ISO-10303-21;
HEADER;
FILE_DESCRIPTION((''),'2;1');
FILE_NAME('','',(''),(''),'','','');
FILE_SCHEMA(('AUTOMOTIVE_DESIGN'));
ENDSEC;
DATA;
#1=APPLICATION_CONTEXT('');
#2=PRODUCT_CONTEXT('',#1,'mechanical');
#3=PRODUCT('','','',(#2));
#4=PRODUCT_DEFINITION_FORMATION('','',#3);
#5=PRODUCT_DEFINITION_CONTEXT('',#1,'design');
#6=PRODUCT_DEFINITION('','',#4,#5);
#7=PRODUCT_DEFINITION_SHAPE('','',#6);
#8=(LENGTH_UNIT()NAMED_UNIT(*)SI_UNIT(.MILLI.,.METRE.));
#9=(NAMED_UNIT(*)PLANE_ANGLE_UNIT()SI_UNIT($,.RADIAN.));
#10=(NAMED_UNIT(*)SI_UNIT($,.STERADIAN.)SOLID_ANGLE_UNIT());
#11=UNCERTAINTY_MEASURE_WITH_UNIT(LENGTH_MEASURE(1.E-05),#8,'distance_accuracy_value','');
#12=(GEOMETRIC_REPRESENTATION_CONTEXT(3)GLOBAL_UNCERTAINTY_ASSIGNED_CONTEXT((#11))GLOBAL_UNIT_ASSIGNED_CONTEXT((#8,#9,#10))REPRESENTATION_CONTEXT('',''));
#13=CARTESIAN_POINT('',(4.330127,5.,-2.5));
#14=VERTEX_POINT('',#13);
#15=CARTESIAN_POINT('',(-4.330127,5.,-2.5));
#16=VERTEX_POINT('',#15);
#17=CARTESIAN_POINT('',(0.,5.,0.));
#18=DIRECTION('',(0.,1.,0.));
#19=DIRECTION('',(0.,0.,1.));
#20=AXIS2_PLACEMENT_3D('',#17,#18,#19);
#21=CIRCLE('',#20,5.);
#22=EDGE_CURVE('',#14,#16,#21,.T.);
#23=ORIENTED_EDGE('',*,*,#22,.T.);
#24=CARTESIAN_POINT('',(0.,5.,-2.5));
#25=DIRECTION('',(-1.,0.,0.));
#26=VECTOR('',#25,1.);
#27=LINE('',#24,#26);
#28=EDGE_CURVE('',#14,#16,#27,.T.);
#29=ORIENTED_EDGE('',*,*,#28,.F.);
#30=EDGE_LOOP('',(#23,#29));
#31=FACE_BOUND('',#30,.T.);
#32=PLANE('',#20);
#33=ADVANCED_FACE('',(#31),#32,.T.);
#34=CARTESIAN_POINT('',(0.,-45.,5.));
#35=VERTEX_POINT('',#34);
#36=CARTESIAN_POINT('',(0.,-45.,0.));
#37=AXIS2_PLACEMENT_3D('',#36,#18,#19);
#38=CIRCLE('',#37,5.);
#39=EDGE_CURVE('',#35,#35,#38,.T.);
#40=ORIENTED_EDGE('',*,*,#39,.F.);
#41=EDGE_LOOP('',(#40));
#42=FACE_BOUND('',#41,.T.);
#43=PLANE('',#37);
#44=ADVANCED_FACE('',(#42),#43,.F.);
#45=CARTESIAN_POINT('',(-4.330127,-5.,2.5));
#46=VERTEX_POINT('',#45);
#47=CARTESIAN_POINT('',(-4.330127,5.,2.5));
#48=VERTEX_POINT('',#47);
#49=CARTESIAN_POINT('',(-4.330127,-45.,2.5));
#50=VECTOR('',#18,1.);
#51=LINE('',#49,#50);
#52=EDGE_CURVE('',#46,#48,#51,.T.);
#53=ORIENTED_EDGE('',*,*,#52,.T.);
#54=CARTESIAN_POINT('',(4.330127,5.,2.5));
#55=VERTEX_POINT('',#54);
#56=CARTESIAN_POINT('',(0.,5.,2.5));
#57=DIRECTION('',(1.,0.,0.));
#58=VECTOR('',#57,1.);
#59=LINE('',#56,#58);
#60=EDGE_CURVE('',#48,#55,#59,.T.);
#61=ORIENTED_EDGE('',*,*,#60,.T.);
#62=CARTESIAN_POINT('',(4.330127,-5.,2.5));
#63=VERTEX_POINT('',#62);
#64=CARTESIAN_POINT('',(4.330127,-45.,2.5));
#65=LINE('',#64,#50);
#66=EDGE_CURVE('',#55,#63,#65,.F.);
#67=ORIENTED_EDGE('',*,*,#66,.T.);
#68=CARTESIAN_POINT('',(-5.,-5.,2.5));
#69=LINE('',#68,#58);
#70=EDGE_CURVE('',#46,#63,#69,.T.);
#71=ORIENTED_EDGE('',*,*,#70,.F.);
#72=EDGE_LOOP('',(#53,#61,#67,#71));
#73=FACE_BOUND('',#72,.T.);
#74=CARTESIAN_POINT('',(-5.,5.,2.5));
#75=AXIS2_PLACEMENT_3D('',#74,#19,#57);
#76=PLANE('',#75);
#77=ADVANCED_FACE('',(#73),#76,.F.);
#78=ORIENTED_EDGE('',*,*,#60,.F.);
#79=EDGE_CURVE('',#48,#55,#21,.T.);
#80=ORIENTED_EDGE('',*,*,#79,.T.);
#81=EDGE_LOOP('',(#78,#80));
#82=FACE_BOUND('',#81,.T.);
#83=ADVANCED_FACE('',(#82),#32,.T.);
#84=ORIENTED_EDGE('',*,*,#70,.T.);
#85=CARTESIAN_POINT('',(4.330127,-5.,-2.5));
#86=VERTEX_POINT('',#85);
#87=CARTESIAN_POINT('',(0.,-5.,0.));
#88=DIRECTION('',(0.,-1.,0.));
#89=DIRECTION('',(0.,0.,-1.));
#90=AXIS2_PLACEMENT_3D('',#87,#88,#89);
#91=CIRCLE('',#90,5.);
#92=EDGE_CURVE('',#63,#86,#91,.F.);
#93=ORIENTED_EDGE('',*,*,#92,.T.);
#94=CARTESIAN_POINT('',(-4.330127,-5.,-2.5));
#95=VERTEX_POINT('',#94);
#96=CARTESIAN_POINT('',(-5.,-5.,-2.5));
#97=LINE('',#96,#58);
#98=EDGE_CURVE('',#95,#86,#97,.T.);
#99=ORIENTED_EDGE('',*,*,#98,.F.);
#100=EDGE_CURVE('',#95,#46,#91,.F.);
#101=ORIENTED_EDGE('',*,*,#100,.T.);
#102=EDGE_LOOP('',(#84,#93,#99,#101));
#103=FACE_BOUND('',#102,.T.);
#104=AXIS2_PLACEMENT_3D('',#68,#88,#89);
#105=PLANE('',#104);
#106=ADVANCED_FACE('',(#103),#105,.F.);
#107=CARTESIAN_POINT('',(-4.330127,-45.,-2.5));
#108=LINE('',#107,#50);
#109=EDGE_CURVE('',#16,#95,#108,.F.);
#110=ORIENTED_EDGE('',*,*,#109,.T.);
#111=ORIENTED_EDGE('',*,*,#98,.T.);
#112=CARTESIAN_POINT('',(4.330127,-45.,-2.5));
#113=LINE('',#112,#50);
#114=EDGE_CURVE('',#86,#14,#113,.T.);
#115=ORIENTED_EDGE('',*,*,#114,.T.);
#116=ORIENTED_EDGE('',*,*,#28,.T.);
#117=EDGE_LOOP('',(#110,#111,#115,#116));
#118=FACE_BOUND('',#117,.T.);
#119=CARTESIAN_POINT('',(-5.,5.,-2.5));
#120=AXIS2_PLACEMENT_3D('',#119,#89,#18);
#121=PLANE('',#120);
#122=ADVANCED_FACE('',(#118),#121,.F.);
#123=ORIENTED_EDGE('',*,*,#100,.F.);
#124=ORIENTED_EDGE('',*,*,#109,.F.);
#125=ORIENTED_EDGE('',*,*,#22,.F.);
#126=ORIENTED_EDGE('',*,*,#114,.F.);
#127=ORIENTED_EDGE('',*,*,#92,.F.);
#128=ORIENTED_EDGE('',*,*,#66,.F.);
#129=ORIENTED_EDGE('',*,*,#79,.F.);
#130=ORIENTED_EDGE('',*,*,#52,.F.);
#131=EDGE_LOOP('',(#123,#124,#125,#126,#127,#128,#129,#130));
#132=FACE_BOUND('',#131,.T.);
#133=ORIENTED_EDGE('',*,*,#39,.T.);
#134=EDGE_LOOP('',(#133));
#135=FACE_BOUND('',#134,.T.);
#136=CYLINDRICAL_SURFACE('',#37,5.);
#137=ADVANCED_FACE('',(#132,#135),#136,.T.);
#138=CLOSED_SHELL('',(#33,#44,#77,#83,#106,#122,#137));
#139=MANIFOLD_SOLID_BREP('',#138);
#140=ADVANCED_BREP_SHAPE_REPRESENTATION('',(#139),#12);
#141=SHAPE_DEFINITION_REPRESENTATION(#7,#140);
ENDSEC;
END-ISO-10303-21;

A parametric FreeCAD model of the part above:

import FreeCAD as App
import Part
import Sketcher
from FreeCAD import Vector

doc = App.newDocument("Part")
params = doc.addObject("Spreadsheet::Sheet", "Params")
for row, (alias, value) in enumerate([
    ("sketch1_diameter", "10 mm"),
    ("pad1_length", "5 mm"),
    ("pad1_length2", "45 mm"),
    ("sketch2_width", "10 mm"),
    ("sketch2_height", "5 mm"),
], start=1):
    params.set(f"A{row}", alias)
    params.set(f"B{row}", "=" + value)
    params.setAlias(f"B{row}", alias)

body = doc.addObject("PartDesign::Body", "Body")

# Sketch on XZ plane
sketch1 = body.newObject("Sketcher::SketchObject", "Sketch")
sketch1.AttachmentSupport = (doc.getObject("XZ_Plane"), [""])
sketch1.MapMode = "FlatFace"
sketch1.addGeometry(Part.Circle(Vector(0, 0, 0), Vector(0, 0, 1), 5), False)
sketch1.addConstraint([
    Sketcher.Constraint("Coincident", 0, 3, -1, 1),
    Sketcher.Constraint("Diameter", 0, 10.0),
])
sketch1.setExpression("Constraints[1]", "Params.sketch1_diameter")
pad1 = body.newObject("PartDesign::Pad", "Pad")
pad1.Profile = sketch1
pad1.Type = "TwoLengths"
pad1.setExpression("Length", "Params.pad1_length")
pad1.setExpression("Length2", "Params.pad1_length2")
pad1.Reversed = True

# Sketch on YZ plane
sketch2 = body.newObject("Sketcher::SketchObject", "Sketch001")
sketch2.AttachmentSupport = (doc.getObject("YZ_Plane"), [""])
sketch2.MapMode = "FlatFace"
sketch2.addGeometry([
    Part.LineSegment(Vector(5, 2.5, 0), Vector(-5, 2.5, 0)),
    Part.LineSegment(Vector(-5, 2.5, 0), Vector(-5, -2.5, 0)),
    Part.LineSegment(Vector(-5, -2.5, 0), Vector(5, -2.5, 0)),
    Part.LineSegment(Vector(5, -2.5, 0), Vector(5, 2.5, 0)),
], False)
sketch2.addConstraint([
    Sketcher.Constraint("Coincident", 0, 2, 1, 1),
    Sketcher.Constraint("Coincident", 1, 2, 2, 1),
    Sketcher.Constraint("Coincident", 2, 2, 3, 1),
    Sketcher.Constraint("Coincident", 3, 2, 0, 1),
    Sketcher.Constraint("Horizontal", 0),
    Sketcher.Constraint("Vertical", 1),
    Sketcher.Constraint("Horizontal", 2),
    Sketcher.Constraint("Vertical", 3),
    Sketcher.Constraint("Symmetric", 0, 2, 2, 2, -1, 1),
    Sketcher.Constraint("DistanceX", 0, 2, 0, 1, 10.0),
    Sketcher.Constraint("DistanceY", 1, 2, 1, 1, 5.0),
])
sketch2.setExpression("Constraints[9]", "Params.sketch2_width")
sketch2.setExpression("Constraints[10]", "Params.sketch2_height")
pocket1 = body.newObject("PartDesign::Pocket", "Pocket")
pocket1.Profile = sketch2
pocket1.Type = "ThroughAll"
pocket1.Midplane = True

doc.recompute()
